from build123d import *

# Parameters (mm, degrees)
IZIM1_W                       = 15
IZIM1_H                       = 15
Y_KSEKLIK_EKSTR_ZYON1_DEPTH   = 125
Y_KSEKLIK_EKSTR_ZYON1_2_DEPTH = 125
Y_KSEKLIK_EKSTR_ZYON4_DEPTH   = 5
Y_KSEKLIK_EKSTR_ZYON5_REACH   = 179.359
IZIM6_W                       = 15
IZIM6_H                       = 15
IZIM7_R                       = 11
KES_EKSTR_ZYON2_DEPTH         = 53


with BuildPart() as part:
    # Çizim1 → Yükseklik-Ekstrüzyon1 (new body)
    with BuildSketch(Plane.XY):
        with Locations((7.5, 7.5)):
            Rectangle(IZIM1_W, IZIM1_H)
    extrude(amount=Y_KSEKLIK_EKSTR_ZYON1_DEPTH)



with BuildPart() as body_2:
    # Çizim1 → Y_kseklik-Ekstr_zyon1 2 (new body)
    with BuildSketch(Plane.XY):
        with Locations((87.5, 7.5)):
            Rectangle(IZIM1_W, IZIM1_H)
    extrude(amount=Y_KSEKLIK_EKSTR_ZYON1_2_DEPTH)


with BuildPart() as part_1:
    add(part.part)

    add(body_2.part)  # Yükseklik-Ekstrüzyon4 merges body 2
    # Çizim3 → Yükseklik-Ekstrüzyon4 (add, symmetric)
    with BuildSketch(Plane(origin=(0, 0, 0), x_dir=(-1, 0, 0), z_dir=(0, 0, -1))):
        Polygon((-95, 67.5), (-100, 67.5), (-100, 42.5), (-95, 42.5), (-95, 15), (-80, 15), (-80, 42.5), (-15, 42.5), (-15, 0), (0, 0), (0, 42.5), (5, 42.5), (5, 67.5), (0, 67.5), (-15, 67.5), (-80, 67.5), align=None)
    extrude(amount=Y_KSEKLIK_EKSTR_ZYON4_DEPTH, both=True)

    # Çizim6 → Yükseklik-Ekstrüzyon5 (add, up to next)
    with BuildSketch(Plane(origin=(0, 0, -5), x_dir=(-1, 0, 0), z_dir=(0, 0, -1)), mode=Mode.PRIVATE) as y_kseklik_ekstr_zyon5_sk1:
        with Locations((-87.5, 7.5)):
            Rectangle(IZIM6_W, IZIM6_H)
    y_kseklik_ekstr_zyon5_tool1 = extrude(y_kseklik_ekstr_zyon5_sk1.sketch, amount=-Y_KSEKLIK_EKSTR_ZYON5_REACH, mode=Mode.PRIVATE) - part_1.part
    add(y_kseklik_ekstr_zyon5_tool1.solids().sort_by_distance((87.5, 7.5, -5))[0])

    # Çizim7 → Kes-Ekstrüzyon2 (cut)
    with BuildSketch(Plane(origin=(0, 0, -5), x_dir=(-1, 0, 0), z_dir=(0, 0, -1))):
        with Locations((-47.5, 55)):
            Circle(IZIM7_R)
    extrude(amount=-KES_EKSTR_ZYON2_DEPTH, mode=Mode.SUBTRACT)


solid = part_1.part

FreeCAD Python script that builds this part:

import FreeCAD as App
import Part
import Sketcher

V = App.Vector


def add_polygon(sketch, points):
    """Adds a closed chain of lines whose ends are joined by coincident constraints."""
    first, n = sketch.GeometryCount, len(points)
    for a, b in zip(points, points[1:] + points[:1]):
        sketch.addGeometry(Part.LineSegment(App.Vector(*a, 0), App.Vector(*b, 0)), False)
    for i in range(n):
        sketch.addConstraint(Sketcher.Constraint("Coincident", first + i, 2, first + (i + 1) % n, 1))

doc = App.newDocument("Part")
body = doc.addObject("PartDesign::Body", "Body")

# Sketch on XY plane
sketch1 = doc.addObject("Sketcher::SketchObject", "Sketch")
body.addObject(sketch1)
sketch1.AttachmentSupport = (doc.XY_Plane, [""])
sketch1.MapMode = "FlatFace"
add_polygon(sketch1, [(0, 15), (0, 0), (15, 0), (15, 15)])  # lines 0-3
sketch1.addConstraint([
    Sketcher.Constraint("Vertical", 0),
    Sketcher.Constraint("Horizontal", 1),
    Sketcher.Constraint("Vertical", 2),
    Sketcher.Constraint("Horizontal", 3),
    Sketcher.Constraint("Coincident", 0, 2, -1, 1),
    Sketcher.Constraint("Equal", 3, 0),
    Sketcher.Constraint("DistanceX", 1, 1, 1, 2, 15.0),
])
pad1 = doc.addObject("PartDesign::Pad", "Pad")
body.addObject(pad1)
pad1.Profile = sketch1
pad1.Length = 125
body2 = doc.addObject("PartDesign::Body", "Body001")

# Sketch on XY plane
sketch2 = doc.addObject("Sketcher::SketchObject", "Sketch001")
body2.addObject(sketch2)
sketch2.AttachmentSupport = (doc.getObject("XY_Plane001"), [""])
sketch2.MapMode = "FlatFace"
add_polygon(sketch2, [(80, 15), (80, 0), (95, 0), (95, 15)])  # lines 0-3
sketch2.addConstraint([
    Sketcher.Constraint("Vertical", 0),
    Sketcher.Constraint("Horizontal", 1),
    Sketcher.Constraint("Vertical", 2),
    Sketcher.Constraint("Horizontal", 3),
    Sketcher.Constraint("PointOnObject", 0, 2, -1),
    Sketcher.Constraint("Equal", 3, 0),
    Sketcher.Constraint("DistanceX", 1, 1, 1, 2, 15.0),
    Sketcher.Constraint("DistanceX", -1, 1, 0, 2, 80.0),
])
pad2 = doc.addObject("PartDesign::Pad", "Pad001")
body2.addObject(pad2)
pad2.Profile = sketch2
pad2.Length = 125
body.AllowCompound = True
doc.recompute()

boolean = doc.addObject("PartDesign::Boolean", "Boolean")
body.addObject(boolean)
boolean.Type = "Fuse"
boolean.addObjects([body2])

# Sketch on XY plane
sketch3 = doc.addObject("Sketcher::SketchObject", "Sketch002")
body.addObject(sketch3)
sketch3.AttachmentSupport = (doc.XY_Plane, [""])
sketch3.MapMode = "FlatFace"
add_polygon(sketch3, [(100, 67.5), (100, 42.5), (95, 42.5), (95, 15), (80, 15), (80, 42.5), (15, 42.5), (15, 0), (0, 0), (0, 42.5), (-5, 42.5), (-5, 67.5)])  # lines 0-11
sketch3.addConstraint([
    Sketcher.Constraint("Vertical", 0),
    Sketcher.Constraint("Horizontal", 1),
    Sketcher.Constraint("Vertical", 2),
    Sketcher.Constraint("Horizontal", 3),
    Sketcher.Constraint("Vertical", 4),
    Sketcher.Constraint("Horizontal", 5),
    Sketcher.Constraint("Vertical", 6),
    Sketcher.Constraint("Horizontal", 7),
    Sketcher.Constraint("Vertical", 8),
    Sketcher.Constraint("Horizontal", 9),
    Sketcher.Constraint("Vertical", 10),
    Sketcher.Constraint("Horizontal", 11),
    Sketcher.Constraint("Coincident", 7, 2, -1, 1),
    Sketcher.Constraint("Horizontal", 1, 2, 4, 2),
    Sketcher.Constraint("Horizontal", 5, 2, 8, 2),
    Sketcher.Constraint("Equal", 3, 7),
    Sketcher.Constraint("Equal", 1, 9),
    Sketcher.Constraint("DistanceX", 1, 2, 1, 1, 5.0),
    Sketcher.Constraint("DistanceX", 3, 2, 3, 1, 15.0),
    Sketcher.Constraint("DistanceX", 5, 2, 5, 1, 65.0),
    Sketcher.Constraint("DistanceY", 0, 2, 0, 1, 25.0),
    Sketcher.Constraint("DistanceY", 2, 2, 2, 1, 27.5),
    Sketcher.Constraint("DistanceY", 6, 2, 6, 1, 42.5),
])
pad3 = doc.addObject("PartDesign::Pad", "Pad002")
body.addObject(pad3)
pad3.Profile = sketch3
pad3.Length = 10
pad3.Midplane = True

# Sketch on XY plane
sketch4 = doc.addObject("Sketcher::SketchObject", "Sketch003")
body.addObject(sketch4)
sketch4.AttachmentSupport = (doc.XY_Plane, [""])
sketch4.MapMode = "FlatFace"
sketch4.AttachmentOffset = App.Placement(V(0, 0, -5), App.Rotation())
add_polygon(sketch4, [(95, 15), (95, 0), (80, 0), (80, 15)])  # lines 0-3
sketch4.addConstraint([
    Sketcher.Constraint("Vertical", 0),
    Sketcher.Constraint("Horizontal", 1),
    Sketcher.Constraint("Vertical", 2),
    Sketcher.Constraint("Horizontal", 3),
    Sketcher.Constraint("PointOnObject", 0, 2, -1),
    Sketcher.Constraint("Equal", 3, 0),
    Sketcher.Constraint("DistanceX", 1, 2, 1, 1, 15.0),
    Sketcher.Constraint("DistanceX", -1, 1, 0, 2, 95.0),
])
pad4 = doc.addObject("PartDesign::Pad", "Pad003")
body.addObject(pad4)
pad4.Profile = sketch4
pad4.Type = "UpToFirst"

# Sketch on XY plane
sketch5 = doc.addObject("Sketcher::SketchObject", "Sketch004")
body.addObject(sketch5)
sketch5.AttachmentSupport = (doc.XY_Plane, [""])
sketch5.MapMode = "FlatFace"
sketch5.AttachmentOffset = App.Placement(V(0, 0, -5), App.Rotation())
sketch5.addGeometry(Part.Circle(V(47.5, 55, 0), V(0, 0, 1), 11), False)
sketch5.addConstraint([
    Sketcher.Constraint("Diameter", 0, 22.0),
    Sketcher.Constraint("DistanceY", -1, 1, 0, 3, 55.0),
    Sketcher.Constraint("DistanceX", -1, 1, 0, 3, 47.5),
])
pocket1 = doc.addObject("PartDesign::Pocket", "Pocket")
body.addObject(pocket1)
pocket1.Profile = sketch5
pocket1.Length = 53
pocket1.Reversed = True

doc.recompute()
